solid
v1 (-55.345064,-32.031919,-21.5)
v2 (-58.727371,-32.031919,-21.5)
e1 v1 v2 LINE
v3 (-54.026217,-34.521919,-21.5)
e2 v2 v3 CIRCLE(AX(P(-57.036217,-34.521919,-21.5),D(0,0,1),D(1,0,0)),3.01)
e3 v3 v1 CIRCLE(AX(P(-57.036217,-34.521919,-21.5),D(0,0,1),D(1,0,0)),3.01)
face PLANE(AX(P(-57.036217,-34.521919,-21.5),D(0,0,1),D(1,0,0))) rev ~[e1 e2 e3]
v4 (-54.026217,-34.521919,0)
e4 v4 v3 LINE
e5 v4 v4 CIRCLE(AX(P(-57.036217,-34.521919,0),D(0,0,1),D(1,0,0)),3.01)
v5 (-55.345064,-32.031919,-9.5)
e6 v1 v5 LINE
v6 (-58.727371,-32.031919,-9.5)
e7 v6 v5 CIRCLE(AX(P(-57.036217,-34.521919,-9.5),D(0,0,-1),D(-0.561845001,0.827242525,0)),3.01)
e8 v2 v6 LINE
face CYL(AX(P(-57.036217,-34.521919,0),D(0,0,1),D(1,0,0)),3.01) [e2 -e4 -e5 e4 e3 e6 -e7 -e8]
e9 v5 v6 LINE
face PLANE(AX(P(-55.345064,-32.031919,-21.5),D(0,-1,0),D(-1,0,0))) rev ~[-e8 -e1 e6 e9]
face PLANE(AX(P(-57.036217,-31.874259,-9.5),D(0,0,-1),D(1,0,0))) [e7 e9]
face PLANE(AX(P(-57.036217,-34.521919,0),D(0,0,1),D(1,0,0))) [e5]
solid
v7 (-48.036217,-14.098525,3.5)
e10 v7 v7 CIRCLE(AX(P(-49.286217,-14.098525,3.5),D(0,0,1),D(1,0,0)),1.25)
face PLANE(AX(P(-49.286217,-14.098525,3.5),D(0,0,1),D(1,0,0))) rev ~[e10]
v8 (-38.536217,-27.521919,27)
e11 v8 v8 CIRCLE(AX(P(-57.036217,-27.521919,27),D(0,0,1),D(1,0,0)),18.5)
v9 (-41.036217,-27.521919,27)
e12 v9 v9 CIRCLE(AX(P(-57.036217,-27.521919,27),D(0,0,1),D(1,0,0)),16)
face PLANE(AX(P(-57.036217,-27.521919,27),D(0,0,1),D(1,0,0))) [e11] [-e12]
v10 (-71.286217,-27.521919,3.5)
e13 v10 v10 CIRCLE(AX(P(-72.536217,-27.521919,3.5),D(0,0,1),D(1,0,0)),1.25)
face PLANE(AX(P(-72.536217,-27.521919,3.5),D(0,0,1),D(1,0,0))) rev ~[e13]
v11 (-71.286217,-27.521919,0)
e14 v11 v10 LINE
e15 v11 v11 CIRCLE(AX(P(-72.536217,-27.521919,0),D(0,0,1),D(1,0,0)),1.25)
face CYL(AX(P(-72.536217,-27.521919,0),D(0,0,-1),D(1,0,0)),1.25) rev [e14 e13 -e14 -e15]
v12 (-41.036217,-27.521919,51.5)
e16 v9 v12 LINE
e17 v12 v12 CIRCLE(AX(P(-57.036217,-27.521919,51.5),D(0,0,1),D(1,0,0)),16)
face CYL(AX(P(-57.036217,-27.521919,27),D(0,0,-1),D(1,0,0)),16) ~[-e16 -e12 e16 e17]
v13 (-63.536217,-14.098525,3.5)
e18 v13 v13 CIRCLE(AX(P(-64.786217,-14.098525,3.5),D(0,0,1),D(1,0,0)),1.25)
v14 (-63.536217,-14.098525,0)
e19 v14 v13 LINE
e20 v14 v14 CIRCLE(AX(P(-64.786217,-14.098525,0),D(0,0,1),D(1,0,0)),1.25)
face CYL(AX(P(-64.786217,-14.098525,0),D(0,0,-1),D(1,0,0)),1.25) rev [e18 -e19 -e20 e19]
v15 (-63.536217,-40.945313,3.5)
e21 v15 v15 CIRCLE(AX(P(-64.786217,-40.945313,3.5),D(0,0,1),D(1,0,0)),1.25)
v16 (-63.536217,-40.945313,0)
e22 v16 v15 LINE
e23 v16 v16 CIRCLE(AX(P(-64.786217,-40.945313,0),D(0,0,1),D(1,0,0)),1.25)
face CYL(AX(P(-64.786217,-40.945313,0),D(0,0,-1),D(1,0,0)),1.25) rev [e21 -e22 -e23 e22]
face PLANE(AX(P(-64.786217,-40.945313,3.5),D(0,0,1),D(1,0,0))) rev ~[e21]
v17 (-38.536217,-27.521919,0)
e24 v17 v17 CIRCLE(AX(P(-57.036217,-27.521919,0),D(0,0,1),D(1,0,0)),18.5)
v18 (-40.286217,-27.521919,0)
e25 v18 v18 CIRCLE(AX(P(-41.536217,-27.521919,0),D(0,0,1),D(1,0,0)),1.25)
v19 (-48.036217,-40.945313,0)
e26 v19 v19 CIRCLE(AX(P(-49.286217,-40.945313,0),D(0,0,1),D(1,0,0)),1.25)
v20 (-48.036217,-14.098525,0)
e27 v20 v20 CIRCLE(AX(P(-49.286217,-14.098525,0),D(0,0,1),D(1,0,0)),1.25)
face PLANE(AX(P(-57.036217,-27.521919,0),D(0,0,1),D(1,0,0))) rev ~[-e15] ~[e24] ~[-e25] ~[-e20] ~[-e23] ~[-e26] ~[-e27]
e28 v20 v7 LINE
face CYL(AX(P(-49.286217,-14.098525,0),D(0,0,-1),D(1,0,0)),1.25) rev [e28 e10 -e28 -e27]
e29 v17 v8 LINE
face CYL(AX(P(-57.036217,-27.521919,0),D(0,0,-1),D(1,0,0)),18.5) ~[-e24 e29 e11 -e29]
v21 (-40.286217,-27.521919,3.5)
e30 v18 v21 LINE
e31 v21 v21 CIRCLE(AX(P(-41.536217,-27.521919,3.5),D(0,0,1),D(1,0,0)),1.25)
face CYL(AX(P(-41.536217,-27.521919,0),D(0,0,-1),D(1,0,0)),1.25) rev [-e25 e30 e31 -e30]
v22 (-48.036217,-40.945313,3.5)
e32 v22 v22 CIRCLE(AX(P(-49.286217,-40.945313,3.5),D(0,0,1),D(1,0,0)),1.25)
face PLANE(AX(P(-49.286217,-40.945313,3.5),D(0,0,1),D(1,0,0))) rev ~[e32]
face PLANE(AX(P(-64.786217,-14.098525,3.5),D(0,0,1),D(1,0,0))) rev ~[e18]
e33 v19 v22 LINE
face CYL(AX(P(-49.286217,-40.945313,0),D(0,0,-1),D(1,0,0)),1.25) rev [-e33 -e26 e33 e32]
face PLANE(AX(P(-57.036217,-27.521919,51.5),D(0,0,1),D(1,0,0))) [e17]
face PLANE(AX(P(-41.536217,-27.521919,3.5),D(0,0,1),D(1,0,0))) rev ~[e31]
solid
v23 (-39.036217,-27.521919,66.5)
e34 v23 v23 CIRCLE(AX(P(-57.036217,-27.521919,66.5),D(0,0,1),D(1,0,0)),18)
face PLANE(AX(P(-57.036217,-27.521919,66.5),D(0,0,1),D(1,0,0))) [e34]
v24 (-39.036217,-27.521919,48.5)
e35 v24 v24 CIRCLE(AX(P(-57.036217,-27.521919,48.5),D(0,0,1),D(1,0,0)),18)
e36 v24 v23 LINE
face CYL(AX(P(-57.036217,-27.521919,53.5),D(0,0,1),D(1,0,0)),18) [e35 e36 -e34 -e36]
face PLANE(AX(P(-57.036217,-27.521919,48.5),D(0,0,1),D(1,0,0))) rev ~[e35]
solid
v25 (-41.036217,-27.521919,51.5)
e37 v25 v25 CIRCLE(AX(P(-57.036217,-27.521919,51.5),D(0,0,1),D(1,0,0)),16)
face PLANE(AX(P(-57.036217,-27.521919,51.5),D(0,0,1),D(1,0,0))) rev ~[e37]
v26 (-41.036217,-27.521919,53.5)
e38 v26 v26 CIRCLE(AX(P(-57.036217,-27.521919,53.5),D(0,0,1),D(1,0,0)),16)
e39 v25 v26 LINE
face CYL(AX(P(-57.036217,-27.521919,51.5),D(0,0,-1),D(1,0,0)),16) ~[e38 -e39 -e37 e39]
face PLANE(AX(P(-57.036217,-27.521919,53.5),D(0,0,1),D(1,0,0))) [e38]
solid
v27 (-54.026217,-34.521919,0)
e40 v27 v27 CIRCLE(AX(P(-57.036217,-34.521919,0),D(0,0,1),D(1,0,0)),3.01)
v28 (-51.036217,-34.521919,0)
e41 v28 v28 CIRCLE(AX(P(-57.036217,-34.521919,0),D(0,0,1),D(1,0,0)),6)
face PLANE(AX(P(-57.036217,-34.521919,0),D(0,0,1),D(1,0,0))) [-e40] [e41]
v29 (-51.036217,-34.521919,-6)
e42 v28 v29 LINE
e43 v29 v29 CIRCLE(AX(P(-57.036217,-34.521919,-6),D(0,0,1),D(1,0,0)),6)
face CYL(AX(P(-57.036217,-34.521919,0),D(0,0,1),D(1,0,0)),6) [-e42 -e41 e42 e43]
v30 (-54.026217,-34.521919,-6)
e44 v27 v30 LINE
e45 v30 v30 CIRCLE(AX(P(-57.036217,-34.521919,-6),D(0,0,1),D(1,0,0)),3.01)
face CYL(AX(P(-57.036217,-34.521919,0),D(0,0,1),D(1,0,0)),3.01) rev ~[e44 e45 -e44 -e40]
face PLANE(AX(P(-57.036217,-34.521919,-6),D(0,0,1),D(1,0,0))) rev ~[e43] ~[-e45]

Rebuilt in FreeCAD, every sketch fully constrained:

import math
import FreeCAD as App
import Part
import Sketcher
from FreeCAD import Vector

doc = App.newDocument("Part")
body = doc.addObject("PartDesign::Body", "Body")

# Sketch on XY plane
sketch1 = body.newObject("Sketcher::SketchObject", "Sketch")
sketch1.AttachmentSupport = (doc.getObject("XY_Plane"), [""])
sketch1.MapMode = "FlatFace"
sketch1.addGeometry(Part.Circle(Vector(-57, -34.5, 0), Vector(0, 0, 1), 3), False)
sketch1.addConstraint([
    Sketcher.Constraint("Diameter", 0, 6.02),
    Sketcher.Constraint("DistanceY", 0, 3, -1, 1, 34.521919),
    Sketcher.Constraint("DistanceX", 0, 3, -1, 1, 57.036217),
])
pad1 = body.newObject("PartDesign::Pad", "Pad")
pad1.Profile = sketch1
pad1.Length = 21.5
pad1.Reversed = True

# Sketch on XY plane
sketch2 = body.newObject("Sketcher::SketchObject", "Sketch001")
sketch2.AttachmentSupport = (doc.getObject("XY_Plane"), [""])
sketch2.MapMode = "FlatFace"
sketch2.AttachmentOffset = App.Placement(Vector(0, 0, -21.5), App.Rotation())
sketch2.addGeometry([
    Part.LineSegment(Vector(-55.3, -32, 0), Vector(-58.7, -32, 0)),
    Part.ArcOfCircle(Part.Circle(Vector(-57, -34.5, 0), Vector(0, 0, 1), 3), math.radians(56), math.radians(124)),
], False)
sketch2.addConstraint([
    Sketcher.Constraint("Coincident", 0, 1, 1, 1),
    Sketcher.Constraint("Coincident", 1, 2, 0, 2),
    Sketcher.Constraint("Horizontal", 0),
    Sketcher.Constraint("Radius", 1, 3.01),
    Sketcher.Constraint("DistanceY", 1, 3, 0, 1, 2.49),
    Sketcher.Constraint("DistanceY", 1, 3, -1, 1, 34.521919),
    Sketcher.Constraint("DistanceX", 1, 2, -1, 1, 58.727371),
])
pocket1 = body.newObject("PartDesign::Pocket", "Pocket")
pocket1.Profile = sketch2
pocket1.Length = 12
pocket1.Reversed = True
body2 = doc.addObject("PartDesign::Body", "Body001")

# Sketch on XY plane
sketch3 = body2.newObject("Sketcher::SketchObject", "Sketch002")
sketch3.AttachmentSupport = (doc.getObject("XY_Plane001"), [""])
sketch3.MapMode = "FlatFace"
sketch3.addGeometry([
    Part.Circle(Vector(-57, -34.5, 0), Vector(0, 0, 1), 6),
    Part.Circle(Vector(-57, -34.5, 0), Vector(0, 0, 1), 3),
], False)
sketch3.addConstraint([
    Sketcher.Constraint("Coincident", 1, 3, 0, 3),
    Sketcher.Constraint("Diameter", 0, 12.0),
    Sketcher.Constraint("Diameter", 1, 6.02),
    Sketcher.Constraint("DistanceY", 0, 3, -1, 1, 34.521919),
    Sketcher.Constraint("DistanceX", 0, 3, -1, 1, 57.036217),
])
pad2 = body2.newObject("PartDesign::Pad", "Pad001")
pad2.Profile = sketch3
pad2.Length = 6
pad2.Reversed = True
body3 = doc.addObject("PartDesign::Body", "Body002")

# Sketch on XY plane
sketch4 = body3.newObject("Sketcher::SketchObject", "Sketch003")
sketch4.AttachmentSupport = (doc.getObject("XY_Plane002"), [""])
sketch4.MapMode = "FlatFace"
sketch4.addGeometry(Part.Circle(Vector(-57, -28, 0), Vector(0, 0, 1), 18), False)
sketch4.addConstraint([
    Sketcher.Constraint("Diameter", 0, 37.0),
    Sketcher.Constraint("DistanceY", 0, 3, -1, 1, 27.521919),
    Sketcher.Constraint("DistanceX", 0, 3, -1, 1, 57.036217),
])
pad3 = body3.newObject("PartDesign::Pad", "Pad002")
pad3.Profile = sketch4
pad3.Length = 27
body4 = doc.addObject("PartDesign::Body", "Body003")

# Sketch on XY plane
sketch5 = body4.newObject("Sketcher::SketchObject", "Sketch004")
sketch5.AttachmentSupport = (doc.getObject("XY_Plane003"), [""])
sketch5.MapMode = "FlatFace"
sketch5.addGeometry(Part.Circle(Vector(-64.8, -40.9, 0), Vector(0, 0, 1), 1.2), False)
sketch5.addConstraint([
    Sketcher.Constraint("Diameter", 0, 2.5),
    Sketcher.Constraint("DistanceX", 0, 3, -1, 1, 64.786217),
    Sketcher.Constraint("DistanceY", 0, 3, -1, 1, 40.945313),
])
pad4 = body4.newObject("PartDesign::Pad", "Pad003")
pad4.Profile = sketch5
pad4.Length = 3.5
body5 = doc.addObject("PartDesign::Body", "Body004")

# Sketch on XY plane
sketch6 = body5.newObject("Sketcher::SketchObject", "Sketch005")
sketch6.AttachmentSupport = (doc.getObject("XY_Plane004"), [""])
sketch6.MapMode = "FlatFace"
sketch6.addGeometry(Part.Circle(Vector(-49.3, -40.9, 0), Vector(0, 0, 1), 1.2), False)
sketch6.addConstraint([
    Sketcher.Constraint("Diameter", 0, 2.5),
    Sketcher.Constraint("DistanceX", 0, 3, -1, 1, 49.286217),
    Sketcher.Constraint("DistanceY", 0, 3, -1, 1, 40.945313),
])
pad5 = body5.newObject("PartDesign::Pad", "Pad004")
pad5.Profile = sketch6
pad5.Length = 3.5
body6 = doc.addObject("PartDesign::Body", "Body005")

# Sketch on XY plane
sketch7 = body6.newObject("Sketcher::SketchObject", "Sketch006")
sketch7.AttachmentSupport = (doc.getObject("XY_Plane005"), [""])
sketch7.MapMode = "FlatFace"
sketch7.addGeometry(Part.Circle(Vector(-41.5, -27.5, 0), Vector(0, 0, 1), 1.2), False)
sketch7.addConstraint([
    Sketcher.Constraint("Diameter", 0, 2.5),
    Sketcher.Constraint("DistanceY", 0, 3, -1, 1, 27.521919),
    Sketcher.Constraint("DistanceX", 0, 3, -1, 1, 41.536217),
])
pad6 = body6.newObject("PartDesign::Pad", "Pad005")
pad6.Profile = sketch7
pad6.Length = 3.5
body7 = doc.addObject("PartDesign::Body", "Body006")

# Sketch on XY plane
sketch8 = body7.newObject("Sketcher::SketchObject", "Sketch007")
sketch8.AttachmentSupport = (doc.getObject("XY_Plane006"), [""])
sketch8.MapMode = "FlatFace"
sketch8.addGeometry(Part.Circle(Vector(-49.3, -14.1, 0), Vector(0, 0, 1), 1.2), False)
sketch8.addConstraint([
    Sketcher.Constraint("Diameter", 0, 2.5),
    Sketcher.Constraint("DistanceX", 0, 3, -1, 1, 49.286217),
    Sketcher.Constraint("DistanceY", 0, 3, -1, 1, 14.098525),
])
pad7 = body7.newObject("PartDesign::Pad", "Pad006")
pad7.Profile = sketch8
pad7.Length = 3.5
body8 = doc.addObject("PartDesign::Body", "Body007")

# Sketch on XY plane
sketch9 = body8.newObject("Sketcher::SketchObject", "Sketch008")
sketch9.AttachmentSupport = (doc.getObject("XY_Plane007"), [""])
sketch9.MapMode = "FlatFace"
sketch9.addGeometry(Part.Circle(Vector(-64.8, -14.1, 0), Vector(0, 0, 1), 1.2), False)
sketch9.addConstraint([
    Sketcher.Constraint("Diameter", 0, 2.5),
    Sketcher.Constraint("DistanceX", 0, 3, -1, 1, 64.786217),
    Sketcher.Constraint("DistanceY", 0, 3, -1, 1, 14.098525),
])
pad8 = body8.newObject("PartDesign::Pad", "Pad007")
pad8.Profile = sketch9
pad8.Length = 3.5
body9 = doc.addObject("PartDesign::Body", "Body008")

# Sketch on XY plane
sketch10 = body9.newObject("Sketcher::SketchObject", "Sketch009")
sketch10.AttachmentSupport = (doc.getObject("XY_Plane008"), [""])
sketch10.MapMode = "FlatFace"
sketch10.addGeometry(Part.Circle(Vector(-72.5, -27.5, 0), Vector(0, 0, 1), 1.2), False)
sketch10.addConstraint([
    Sketcher.Constraint("Diameter", 0, 2.5),
    Sketcher.Constraint("DistanceY", 0, 3, -1, 1, 27.521919),
    Sketcher.Constraint("DistanceX", 0, 3, -1, 1, 72.536217),
])
pad9 = body9.newObject("PartDesign::Pad", "Pad008")
pad9.Profile = sketch10
pad9.Length = 3.5
doc.recompute()

boolean = body3.newObject("PartDesign::Boolean", "Boolean")
boolean.Type = "Cut"
boolean.addObjects([body5])
doc.recompute()

boolean2 = body3.newObject("PartDesign::Boolean", "Boolean001")
boolean2.Type = "Cut"
boolean2.addObjects([body9])
doc.recompute()

boolean3 = body3.newObject("PartDesign::Boolean", "Boolean002")
boolean3.Type = "Cut"
boolean3.addObjects([body4])
doc.recompute()

boolean4 = body3.newObject("PartDesign::Boolean", "Boolean003")
boolean4.Type = "Cut"
boolean4.addObjects([body8])
doc.recompute()

boolean5 = body3.newObject("PartDesign::Boolean", "Boolean004")
boolean5.Type = "Cut"
boolean5.addObjects([body7])
doc.recompute()

boolean6 = body3.newObject("PartDesign::Boolean", "Boolean005")
boolean6.Type = "Cut"
boolean6.addObjects([body6])

# Sketch on XY plane
sketch11 = body3.newObject("Sketcher::SketchObject", "Sketch010")
sketch11.AttachmentSupport = (doc.getObject("XY_Plane002"), [""])
sketch11.MapMode = "FlatFace"
sketch11.AttachmentOffset = App.Placement(Vector(0, 0, 27), App.Rotation())
sketch11.addGeometry(Part.Circle(Vector(-57, -28, 0), Vector(0, 0, 1), 16), False)
sketch11.addConstraint([
    Sketcher.Constraint("Diameter", 0, 32.0),
    Sketcher.Constraint("DistanceY", 0, 3, -1, 1, 27.521919),
    Sketcher.Constraint("DistanceX", 0, 3, -1, 1, 57.036217),
])
pad10 = body3.newObject("PartDesign::Pad", "Pad009")
pad10.Profile = sketch11
pad10.Length = 24.5
body10 = doc.addObject("PartDesign::Body", "Body009")

# Sketch on XY plane
sketch12 = body10.newObject("Sketcher::SketchObject", "Sketch011")
sketch12.AttachmentSupport = (doc.getObject("XY_Plane009"), [""])
sketch12.MapMode = "FlatFace"
sketch12.AttachmentOffset = App.Placement(Vector(0, 0, 51.5), App.Rotation())
sketch12.addGeometry(Part.Circle(Vector(-57, -28, 0), Vector(0, 0, 1), 16), False)
sketch12.addConstraint([
    Sketcher.Constraint("Diameter", 0, 32.0),
    Sketcher.Constraint("DistanceY", 0, 3, -1, 1, 27.521919),
    Sketcher.Constraint("DistanceX", 0, 3, -1, 1, 57.036217),
])
pad11 = body10.newObject("PartDesign::Pad", "Pad010")
pad11.Profile = sketch12
pad11.Length = 2
body11 = doc.addObject("PartDesign::Body", "Body010")

# Sketch on XY plane
sketch13 = body11.newObject("Sketcher::SketchObject", "Sketch012")
sketch13.AttachmentSupport = (doc.getObject("XY_Plane010"), [""])
sketch13.MapMode = "FlatFace"
sketch13.AttachmentOffset = App.Placement(Vector(0, 0, 53.5), App.Rotation())
sketch13.addGeometry(Part.Circle(Vector(-57, -28, 0), Vector(0, 0, 1), 18), False)
sketch13.addConstraint([
    Sketcher.Constraint("Diameter", 0, 36.0),
    Sketcher.Constraint("DistanceY", 0, 3, -1, 1, 27.521919),
    Sketcher.Constraint("DistanceX", 0, 3, -1, 1, 57.036217),
])
pad12 = body11.newObject("PartDesign::Pad", "Pad011")
pad12.Profile = sketch13
pad12.Type = "TwoLengths"
pad12.Length = 13
pad12.Length2 = 5

doc.recompute()
